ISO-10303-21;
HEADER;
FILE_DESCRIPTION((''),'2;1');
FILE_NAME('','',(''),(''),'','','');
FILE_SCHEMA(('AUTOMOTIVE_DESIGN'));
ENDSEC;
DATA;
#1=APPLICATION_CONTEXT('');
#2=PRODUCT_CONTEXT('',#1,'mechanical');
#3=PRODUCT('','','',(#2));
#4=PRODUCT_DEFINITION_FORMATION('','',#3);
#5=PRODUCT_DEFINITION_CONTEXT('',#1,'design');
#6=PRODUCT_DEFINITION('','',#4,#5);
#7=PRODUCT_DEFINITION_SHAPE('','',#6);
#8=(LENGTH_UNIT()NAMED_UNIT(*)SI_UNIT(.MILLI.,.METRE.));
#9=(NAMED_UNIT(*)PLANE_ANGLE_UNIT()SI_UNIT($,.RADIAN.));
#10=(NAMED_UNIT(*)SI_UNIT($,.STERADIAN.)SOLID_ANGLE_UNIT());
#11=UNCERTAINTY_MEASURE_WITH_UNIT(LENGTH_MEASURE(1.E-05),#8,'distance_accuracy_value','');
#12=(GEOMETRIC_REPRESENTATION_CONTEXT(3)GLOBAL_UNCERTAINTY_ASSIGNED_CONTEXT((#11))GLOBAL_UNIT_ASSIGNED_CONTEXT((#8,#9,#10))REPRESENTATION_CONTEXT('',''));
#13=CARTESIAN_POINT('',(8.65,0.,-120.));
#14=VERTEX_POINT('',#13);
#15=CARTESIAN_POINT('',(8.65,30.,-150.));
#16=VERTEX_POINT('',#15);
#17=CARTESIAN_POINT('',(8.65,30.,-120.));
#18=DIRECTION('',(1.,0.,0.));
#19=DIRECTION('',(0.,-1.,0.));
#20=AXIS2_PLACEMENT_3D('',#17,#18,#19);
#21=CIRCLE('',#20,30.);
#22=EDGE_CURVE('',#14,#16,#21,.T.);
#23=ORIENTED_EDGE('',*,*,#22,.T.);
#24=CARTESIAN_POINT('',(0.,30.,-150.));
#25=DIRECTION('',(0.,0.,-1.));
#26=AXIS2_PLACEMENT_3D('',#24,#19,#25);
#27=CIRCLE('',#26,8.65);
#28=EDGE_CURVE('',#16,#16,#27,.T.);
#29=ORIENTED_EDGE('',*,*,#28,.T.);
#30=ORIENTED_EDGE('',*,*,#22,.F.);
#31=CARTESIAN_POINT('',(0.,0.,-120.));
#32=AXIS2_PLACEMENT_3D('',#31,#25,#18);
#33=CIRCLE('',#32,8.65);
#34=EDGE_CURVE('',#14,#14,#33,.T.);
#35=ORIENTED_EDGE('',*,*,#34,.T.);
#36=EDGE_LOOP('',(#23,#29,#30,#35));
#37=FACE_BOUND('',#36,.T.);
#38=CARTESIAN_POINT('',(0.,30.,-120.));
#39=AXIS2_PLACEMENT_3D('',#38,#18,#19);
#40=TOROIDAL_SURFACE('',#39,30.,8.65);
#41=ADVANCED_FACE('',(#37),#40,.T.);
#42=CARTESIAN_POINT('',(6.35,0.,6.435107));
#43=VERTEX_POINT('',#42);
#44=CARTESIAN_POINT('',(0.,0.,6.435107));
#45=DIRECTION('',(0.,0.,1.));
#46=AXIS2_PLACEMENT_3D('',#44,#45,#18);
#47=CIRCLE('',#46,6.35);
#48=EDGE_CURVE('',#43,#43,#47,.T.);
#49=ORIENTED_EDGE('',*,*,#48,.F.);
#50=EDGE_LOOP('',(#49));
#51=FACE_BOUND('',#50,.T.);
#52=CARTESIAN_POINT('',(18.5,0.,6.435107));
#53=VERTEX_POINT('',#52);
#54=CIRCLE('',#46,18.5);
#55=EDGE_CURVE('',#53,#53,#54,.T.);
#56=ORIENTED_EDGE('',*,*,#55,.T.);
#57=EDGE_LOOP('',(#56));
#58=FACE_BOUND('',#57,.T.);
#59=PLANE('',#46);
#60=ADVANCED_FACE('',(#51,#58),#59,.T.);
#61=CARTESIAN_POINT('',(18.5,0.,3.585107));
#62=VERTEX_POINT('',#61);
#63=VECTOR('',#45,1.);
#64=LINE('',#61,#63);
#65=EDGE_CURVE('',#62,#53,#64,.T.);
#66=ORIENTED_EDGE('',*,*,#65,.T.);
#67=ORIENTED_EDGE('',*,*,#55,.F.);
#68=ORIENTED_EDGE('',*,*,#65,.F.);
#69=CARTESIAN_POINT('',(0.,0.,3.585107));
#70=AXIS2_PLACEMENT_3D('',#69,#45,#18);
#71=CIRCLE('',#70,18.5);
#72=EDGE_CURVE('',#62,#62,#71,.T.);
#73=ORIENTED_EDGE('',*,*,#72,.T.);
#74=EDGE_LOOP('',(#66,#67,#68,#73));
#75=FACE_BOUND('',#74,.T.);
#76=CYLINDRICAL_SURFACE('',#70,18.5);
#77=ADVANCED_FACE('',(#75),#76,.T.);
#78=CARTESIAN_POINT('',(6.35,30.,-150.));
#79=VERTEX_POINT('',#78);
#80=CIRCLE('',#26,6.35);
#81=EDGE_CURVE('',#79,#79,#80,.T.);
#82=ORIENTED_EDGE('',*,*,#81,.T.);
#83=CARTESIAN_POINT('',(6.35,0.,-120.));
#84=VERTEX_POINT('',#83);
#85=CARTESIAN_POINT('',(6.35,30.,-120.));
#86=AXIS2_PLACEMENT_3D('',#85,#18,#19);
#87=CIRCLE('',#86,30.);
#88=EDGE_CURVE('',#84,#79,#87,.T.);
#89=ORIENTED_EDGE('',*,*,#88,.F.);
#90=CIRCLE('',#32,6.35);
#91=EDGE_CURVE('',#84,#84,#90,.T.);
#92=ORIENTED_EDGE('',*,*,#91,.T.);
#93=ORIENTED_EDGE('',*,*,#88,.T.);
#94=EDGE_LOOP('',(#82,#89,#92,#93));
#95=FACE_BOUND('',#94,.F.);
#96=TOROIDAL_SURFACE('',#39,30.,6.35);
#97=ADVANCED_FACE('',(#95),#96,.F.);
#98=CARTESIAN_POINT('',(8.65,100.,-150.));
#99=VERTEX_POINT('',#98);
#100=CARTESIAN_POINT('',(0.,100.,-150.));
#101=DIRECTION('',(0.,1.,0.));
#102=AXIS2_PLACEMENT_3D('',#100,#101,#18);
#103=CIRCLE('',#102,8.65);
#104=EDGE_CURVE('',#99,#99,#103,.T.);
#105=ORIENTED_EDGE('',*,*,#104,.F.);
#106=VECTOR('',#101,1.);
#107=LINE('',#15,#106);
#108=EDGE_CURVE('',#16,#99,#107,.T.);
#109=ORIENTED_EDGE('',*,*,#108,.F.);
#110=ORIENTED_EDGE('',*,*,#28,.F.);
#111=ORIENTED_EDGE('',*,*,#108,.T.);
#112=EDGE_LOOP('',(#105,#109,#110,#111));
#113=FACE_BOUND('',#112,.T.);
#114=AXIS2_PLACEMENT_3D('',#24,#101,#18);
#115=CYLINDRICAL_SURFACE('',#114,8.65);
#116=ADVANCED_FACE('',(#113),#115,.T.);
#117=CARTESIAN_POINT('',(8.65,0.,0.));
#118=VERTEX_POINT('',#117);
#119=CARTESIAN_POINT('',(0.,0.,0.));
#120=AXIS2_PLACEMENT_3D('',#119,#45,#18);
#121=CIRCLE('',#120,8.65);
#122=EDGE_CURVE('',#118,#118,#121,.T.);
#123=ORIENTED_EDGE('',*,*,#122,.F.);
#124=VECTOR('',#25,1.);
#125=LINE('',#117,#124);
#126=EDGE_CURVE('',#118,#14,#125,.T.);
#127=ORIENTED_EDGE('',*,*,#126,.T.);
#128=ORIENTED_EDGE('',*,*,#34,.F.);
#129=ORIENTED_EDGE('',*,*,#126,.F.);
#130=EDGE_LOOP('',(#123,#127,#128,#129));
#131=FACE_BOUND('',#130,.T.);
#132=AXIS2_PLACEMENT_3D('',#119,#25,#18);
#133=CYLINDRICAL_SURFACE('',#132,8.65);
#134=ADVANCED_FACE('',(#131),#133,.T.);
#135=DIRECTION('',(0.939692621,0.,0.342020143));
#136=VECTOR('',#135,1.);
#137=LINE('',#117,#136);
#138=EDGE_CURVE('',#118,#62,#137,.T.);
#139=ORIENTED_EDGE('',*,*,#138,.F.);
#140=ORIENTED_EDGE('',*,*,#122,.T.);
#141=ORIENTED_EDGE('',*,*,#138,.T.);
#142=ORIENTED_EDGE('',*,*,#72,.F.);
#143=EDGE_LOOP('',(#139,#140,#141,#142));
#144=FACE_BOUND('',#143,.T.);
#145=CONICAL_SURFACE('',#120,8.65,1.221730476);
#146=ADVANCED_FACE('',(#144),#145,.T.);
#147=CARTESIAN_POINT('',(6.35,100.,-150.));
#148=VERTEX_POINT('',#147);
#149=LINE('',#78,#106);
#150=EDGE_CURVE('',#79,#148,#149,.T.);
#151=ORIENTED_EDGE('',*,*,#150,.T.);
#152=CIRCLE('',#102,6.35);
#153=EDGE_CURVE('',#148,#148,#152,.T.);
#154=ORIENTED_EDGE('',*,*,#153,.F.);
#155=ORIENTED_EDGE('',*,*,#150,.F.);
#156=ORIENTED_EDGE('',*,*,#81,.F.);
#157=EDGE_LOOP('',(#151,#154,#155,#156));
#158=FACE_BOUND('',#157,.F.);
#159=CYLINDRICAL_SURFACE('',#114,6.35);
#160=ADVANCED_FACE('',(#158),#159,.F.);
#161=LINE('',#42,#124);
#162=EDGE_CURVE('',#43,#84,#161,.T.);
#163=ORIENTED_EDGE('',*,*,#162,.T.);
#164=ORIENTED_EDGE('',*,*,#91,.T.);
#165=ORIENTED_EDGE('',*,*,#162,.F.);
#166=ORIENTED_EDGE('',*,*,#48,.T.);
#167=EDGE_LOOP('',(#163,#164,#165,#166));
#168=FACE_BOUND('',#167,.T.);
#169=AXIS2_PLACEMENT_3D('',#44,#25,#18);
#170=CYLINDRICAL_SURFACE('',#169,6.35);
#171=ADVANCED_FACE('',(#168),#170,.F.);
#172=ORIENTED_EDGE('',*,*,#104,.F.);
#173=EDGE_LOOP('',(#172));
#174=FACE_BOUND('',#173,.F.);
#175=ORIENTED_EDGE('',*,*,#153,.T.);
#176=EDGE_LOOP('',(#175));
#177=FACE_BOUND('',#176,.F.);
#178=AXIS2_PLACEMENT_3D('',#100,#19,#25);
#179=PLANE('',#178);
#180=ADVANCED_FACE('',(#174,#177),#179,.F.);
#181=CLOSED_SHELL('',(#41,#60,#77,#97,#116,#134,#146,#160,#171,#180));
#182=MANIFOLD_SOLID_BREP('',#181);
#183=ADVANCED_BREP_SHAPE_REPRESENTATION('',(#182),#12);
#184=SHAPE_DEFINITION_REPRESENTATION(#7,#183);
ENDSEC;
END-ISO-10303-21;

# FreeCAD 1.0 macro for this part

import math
import FreeCAD as App
import Part
import Sketcher
Q = App.Units.Quantity

doc = App.newDocument("Part")
body = doc.addObject("PartDesign::Body", "Body")

sketch1 = doc.addObject("Sketcher::SketchObject", "Sketch")
body.addObject(sketch1)
sketch1.AttachmentSupport = (doc.XZ_Plane, [""])
sketch1.MapMode = "FlatFace"
sketch1.addGeometry([
    Part.LineSegment(App.Vector(6.35, 6.435107, 0), App.Vector(6.35, 0, 0)),
    Part.LineSegment(App.Vector(6.35, 0, 0), App.Vector(8.65, 0, 0)),
    Part.LineSegment(App.Vector(8.65, 0, 0), App.Vector(18.5, 3.585107, 0)),
    Part.LineSegment(App.Vector(18.5, 3.585107, 0), App.Vector(18.5, 6.435107, 0)),
    Part.LineSegment(App.Vector(18.5, 6.435107, 0), App.Vector(6.35, 6.435107, 0)),
], False)
sketch1.addConstraint([
    Sketcher.Constraint("Coincident", 0, 2, 1, 1),
    Sketcher.Constraint("Coincident", 1, 2, 2, 1),
    Sketcher.Constraint("Coincident", 2, 2, 3, 1),
    Sketcher.Constraint("Coincident", 3, 2, 4, 1),
    Sketcher.Constraint("Coincident", 4, 2, 0, 1),
    Sketcher.Constraint("Vertical", 0),
    Sketcher.Constraint("Horizontal", 1),
    Sketcher.Constraint("Vertical", 3),
    Sketcher.Constraint("Horizontal", 4),
    Sketcher.Constraint("PointOnObject", 0, 2, -1),
    Sketcher.Constraint("Angle", 2, Q("20 deg")),
    Sketcher.Constraint("DistanceX", 1, 1, 1, 2, Q("2.3 mm")),
    Sketcher.Constraint("DistanceX", 4, 2, 4, 1, Q("12.15 mm")),
    Sketcher.Constraint("DistanceY", 3, 1, 3, 2, Q("2.85 mm")),
    Sketcher.Constraint("DistanceX", -1, 1, 2, 2, Q("18.5 mm")),
])
revolution = doc.addObject("PartDesign::Revolution", "Revolution")
body.addObject(revolution)
revolution.Profile = sketch1
revolution.ReferenceAxis = (sketch1, ["V_Axis"])
revolution.Angle = 360

sketch2 = doc.addObject("Sketcher::SketchObject", "Sketch001")
body.addObject(sketch2)
sketch2.AttachmentSupport = (doc.XY_Plane, [""])
sketch2.MapMode = "FlatFace"
sketch2.addGeometry([
    Part.Circle(App.Vector(0, 0, 0), App.Vector(0, 0, 1), 8.65),
    Part.Circle(App.Vector(0, 0, 0), App.Vector(0, 0, 1), 6.35),
], False)
sketch2.addConstraint([
    Sketcher.Constraint("Coincident", 0, 3, -1, 1),
    Sketcher.Constraint("Coincident", 1, 3, -1, 1),
    Sketcher.Constraint("Diameter", 0, Q("17.3 mm")),
    Sketcher.Constraint("Diameter", 1, Q("12.7 mm")),
])

sketch3 = doc.addObject("Sketcher::SketchObject", "Sketch002")
body.addObject(sketch3)
sketch3.AttachmentSupport = (doc.YZ_Plane, [""])
sketch3.MapMode = "FlatFace"
sketch3.addGeometry([
    Part.LineSegment(App.Vector(0, 0, 0), App.Vector(0, -120, 0)),
    Part.ArcOfCircle(Part.Circle(App.Vector(30, -120, 0), App.Vector(0, 0, 1), 30), math.radians(180), math.radians(270)),
    Part.LineSegment(App.Vector(30, -150, 0), App.Vector(100, -150, 0)),
], False)
sketch3.addConstraint([
    Sketcher.Constraint("Tangent", 0, 2, 1, 1),
    Sketcher.Constraint("Tangent", 1, 2, 2, 1),
    Sketcher.Constraint("Vertical", 0),
    Sketcher.Constraint("Horizontal", 2),
    Sketcher.Constraint("Coincident", 0, 1, -1, 1),
    Sketcher.Constraint("Radius", 1, Q("30 mm")),
    Sketcher.Constraint("DistanceX", 2, 1, 2, 2, Q("70 mm")),
    Sketcher.Constraint("DistanceY", 0, 2, 0, 1, Q("120 mm")),
])
doc.recompute()

additivepipe = doc.addObject("PartDesign::AdditivePipe", "AdditivePipe")
body.addObject(additivepipe)
additivepipe.Profile = sketch2
additivepipe.Spine = (sketch3, ["Edge1", "Edge2", "Edge3"])

doc.recompute()
